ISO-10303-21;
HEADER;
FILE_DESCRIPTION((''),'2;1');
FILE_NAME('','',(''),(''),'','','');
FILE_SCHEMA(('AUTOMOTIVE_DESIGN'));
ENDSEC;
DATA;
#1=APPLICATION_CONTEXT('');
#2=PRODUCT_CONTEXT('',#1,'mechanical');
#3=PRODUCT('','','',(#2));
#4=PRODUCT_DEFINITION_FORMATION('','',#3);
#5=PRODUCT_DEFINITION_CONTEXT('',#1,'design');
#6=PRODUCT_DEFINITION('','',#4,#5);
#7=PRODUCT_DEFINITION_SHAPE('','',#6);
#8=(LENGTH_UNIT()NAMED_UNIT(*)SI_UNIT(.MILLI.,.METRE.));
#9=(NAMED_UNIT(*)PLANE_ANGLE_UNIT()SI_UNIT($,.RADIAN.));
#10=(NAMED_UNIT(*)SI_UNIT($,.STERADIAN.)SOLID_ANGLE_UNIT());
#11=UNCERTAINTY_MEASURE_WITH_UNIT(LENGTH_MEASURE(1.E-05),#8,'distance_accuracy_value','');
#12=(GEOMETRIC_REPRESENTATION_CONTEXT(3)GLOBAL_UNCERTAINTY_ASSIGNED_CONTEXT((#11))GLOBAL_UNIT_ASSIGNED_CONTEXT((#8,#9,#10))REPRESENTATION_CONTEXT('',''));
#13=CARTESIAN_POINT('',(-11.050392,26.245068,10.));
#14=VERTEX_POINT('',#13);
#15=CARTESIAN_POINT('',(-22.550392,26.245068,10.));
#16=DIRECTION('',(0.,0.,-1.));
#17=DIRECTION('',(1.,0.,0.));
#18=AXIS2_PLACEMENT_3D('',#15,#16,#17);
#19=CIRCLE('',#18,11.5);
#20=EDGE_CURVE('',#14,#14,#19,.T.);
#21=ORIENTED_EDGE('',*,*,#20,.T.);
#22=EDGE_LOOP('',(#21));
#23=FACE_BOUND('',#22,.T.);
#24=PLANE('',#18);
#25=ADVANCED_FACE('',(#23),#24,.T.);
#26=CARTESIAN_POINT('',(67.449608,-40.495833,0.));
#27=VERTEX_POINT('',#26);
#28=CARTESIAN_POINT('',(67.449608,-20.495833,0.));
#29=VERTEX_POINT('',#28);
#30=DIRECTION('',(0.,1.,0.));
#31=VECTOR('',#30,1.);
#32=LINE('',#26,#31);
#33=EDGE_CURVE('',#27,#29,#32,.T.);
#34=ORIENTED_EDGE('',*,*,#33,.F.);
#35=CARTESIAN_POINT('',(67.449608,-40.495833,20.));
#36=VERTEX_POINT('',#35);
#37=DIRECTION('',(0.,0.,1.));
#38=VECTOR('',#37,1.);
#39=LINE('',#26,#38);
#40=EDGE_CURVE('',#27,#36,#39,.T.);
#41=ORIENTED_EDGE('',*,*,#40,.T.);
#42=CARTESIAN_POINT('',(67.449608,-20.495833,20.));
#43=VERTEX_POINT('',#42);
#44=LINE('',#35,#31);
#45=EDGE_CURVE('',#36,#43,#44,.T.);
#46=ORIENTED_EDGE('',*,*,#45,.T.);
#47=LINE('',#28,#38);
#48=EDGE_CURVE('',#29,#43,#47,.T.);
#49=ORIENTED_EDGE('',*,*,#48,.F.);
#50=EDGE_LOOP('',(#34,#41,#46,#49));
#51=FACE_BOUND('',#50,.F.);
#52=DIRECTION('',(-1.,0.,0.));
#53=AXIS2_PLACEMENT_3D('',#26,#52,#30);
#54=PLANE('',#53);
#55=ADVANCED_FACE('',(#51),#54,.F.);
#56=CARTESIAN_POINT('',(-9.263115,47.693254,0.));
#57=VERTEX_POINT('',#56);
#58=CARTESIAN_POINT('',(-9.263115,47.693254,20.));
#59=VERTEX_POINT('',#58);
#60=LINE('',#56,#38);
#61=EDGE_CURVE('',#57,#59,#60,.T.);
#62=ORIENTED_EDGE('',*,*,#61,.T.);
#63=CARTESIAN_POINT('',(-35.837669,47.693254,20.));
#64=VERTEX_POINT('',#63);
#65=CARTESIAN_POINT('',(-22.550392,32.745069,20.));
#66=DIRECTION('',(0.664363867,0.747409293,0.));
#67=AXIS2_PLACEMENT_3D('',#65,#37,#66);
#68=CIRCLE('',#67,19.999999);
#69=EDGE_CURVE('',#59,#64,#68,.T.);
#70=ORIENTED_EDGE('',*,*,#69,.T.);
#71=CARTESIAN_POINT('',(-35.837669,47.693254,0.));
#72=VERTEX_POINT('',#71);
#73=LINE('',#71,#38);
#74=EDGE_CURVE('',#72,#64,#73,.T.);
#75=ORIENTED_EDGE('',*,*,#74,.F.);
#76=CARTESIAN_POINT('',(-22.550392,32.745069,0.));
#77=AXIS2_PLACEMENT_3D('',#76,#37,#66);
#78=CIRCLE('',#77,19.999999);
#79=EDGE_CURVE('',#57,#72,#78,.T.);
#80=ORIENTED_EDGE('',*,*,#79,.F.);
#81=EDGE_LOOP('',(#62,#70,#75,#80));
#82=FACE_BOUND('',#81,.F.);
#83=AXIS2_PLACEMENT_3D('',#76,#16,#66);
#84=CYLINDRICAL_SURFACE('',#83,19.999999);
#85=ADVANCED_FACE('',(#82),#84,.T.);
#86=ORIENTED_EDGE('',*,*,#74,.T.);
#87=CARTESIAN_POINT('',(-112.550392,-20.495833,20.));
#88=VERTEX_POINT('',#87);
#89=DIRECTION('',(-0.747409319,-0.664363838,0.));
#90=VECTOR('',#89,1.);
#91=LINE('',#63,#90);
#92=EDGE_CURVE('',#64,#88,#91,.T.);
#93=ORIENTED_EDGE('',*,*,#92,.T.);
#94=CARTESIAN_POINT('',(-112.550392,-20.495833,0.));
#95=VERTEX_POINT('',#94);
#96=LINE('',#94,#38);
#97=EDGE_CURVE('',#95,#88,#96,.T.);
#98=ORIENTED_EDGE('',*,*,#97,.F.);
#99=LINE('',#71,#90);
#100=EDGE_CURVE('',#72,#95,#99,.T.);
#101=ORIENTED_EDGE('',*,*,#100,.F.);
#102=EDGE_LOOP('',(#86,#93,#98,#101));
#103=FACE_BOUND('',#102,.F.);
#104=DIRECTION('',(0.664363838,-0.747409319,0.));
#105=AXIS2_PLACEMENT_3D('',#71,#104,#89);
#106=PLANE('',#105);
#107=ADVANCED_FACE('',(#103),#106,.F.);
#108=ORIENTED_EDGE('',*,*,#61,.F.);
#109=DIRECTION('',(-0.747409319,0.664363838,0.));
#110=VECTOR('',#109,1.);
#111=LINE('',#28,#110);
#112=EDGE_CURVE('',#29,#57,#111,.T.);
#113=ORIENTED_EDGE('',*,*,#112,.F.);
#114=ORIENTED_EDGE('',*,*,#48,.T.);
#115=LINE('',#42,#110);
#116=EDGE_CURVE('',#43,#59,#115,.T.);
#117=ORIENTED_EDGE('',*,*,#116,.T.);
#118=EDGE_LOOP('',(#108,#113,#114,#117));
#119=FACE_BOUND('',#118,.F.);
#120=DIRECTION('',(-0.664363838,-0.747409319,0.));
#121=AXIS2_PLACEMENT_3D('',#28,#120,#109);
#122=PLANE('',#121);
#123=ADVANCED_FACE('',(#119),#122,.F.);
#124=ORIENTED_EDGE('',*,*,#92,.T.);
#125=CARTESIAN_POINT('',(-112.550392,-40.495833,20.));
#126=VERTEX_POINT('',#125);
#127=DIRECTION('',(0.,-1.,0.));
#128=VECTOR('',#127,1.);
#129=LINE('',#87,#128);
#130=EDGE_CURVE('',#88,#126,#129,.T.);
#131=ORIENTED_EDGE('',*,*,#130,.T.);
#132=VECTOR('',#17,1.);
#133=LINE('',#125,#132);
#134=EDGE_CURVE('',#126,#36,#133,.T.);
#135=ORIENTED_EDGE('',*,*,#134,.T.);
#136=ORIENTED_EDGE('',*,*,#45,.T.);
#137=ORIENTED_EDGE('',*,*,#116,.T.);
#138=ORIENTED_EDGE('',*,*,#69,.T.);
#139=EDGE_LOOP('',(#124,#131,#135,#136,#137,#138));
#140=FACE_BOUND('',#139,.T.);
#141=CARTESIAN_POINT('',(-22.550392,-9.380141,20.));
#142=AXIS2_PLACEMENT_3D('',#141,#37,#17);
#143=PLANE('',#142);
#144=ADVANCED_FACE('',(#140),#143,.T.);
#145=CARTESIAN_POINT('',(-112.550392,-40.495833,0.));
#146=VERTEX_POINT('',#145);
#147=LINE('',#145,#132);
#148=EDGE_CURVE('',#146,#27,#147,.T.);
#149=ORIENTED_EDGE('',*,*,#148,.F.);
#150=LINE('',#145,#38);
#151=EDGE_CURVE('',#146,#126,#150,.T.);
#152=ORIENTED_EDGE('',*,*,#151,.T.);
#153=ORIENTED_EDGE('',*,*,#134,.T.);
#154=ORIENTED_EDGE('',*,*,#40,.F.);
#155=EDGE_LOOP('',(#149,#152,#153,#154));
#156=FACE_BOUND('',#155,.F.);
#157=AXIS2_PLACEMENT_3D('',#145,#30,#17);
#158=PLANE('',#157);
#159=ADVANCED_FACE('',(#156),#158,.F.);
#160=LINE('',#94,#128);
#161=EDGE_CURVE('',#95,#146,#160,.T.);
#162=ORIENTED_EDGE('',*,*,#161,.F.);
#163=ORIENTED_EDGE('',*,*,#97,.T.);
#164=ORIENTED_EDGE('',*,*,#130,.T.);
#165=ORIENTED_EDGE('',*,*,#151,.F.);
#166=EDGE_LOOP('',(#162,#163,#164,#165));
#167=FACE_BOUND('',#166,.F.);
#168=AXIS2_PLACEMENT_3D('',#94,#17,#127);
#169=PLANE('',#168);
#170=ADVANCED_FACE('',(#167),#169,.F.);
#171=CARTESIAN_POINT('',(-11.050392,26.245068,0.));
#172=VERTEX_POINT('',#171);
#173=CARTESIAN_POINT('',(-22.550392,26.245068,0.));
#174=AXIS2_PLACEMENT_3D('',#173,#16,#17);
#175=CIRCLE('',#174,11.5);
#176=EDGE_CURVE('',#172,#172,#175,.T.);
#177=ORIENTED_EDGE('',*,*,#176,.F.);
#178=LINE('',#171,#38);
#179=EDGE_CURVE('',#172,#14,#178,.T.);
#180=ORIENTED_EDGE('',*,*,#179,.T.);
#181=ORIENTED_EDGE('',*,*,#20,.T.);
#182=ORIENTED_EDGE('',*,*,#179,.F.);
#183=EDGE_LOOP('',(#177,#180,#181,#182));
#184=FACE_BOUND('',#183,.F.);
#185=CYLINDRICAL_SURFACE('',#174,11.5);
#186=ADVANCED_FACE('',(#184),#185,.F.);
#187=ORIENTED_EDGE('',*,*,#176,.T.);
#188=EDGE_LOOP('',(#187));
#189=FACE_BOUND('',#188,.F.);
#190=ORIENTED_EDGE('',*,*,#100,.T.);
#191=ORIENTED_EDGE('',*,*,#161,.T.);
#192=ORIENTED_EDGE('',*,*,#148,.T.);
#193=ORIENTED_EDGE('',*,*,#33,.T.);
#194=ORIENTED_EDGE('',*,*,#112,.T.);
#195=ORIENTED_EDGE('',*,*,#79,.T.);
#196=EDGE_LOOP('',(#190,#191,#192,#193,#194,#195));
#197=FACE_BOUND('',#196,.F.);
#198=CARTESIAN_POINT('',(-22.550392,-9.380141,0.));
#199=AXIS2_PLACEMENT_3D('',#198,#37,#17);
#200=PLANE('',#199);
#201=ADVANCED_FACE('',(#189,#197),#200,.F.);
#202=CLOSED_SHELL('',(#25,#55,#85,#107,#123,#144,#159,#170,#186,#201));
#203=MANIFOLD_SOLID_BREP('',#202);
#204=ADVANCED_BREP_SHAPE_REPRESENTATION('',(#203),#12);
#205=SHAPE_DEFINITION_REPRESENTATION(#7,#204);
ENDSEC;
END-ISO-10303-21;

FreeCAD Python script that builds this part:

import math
import FreeCAD as App
import Part
import Sketcher

V = App.Vector
Q = App.Units.Quantity

doc = App.newDocument("Part")
body = doc.addObject("PartDesign::Body", "Body")

sketch1 = doc.addObject("Sketcher::SketchObject", "Sketch")
body.addObject(sketch1)
sketch1.AttachmentSupport = (doc.XY_Plane, [""])
sketch1.MapMode = "FlatFace"
sketch1.addGeometry([
    Part.LineSegment(V(-36, 48, 0), V(-113, -20, 0)),
    Part.LineSegment(V(-113, -20, 0), V(-113, -40, 0)),
    Part.LineSegment(V(-113, -40, 0), V(67, -40, 0)),
    Part.LineSegment(V(67, -40, 0), V(67, -20, 0)),
    Part.LineSegment(V(67, -20, 0), V(-9, 48, 0)),
    Part.ArcOfCircle(Part.Circle(V(-23, 33, 0), V(0, 0, 1), 20), math.radians(48), math.radians(132)),
], False)
sketch1.addConstraint([
    Sketcher.Constraint("Coincident", 0, 2, 1, 1),
    Sketcher.Constraint("Coincident", 1, 2, 2, 1),
    Sketcher.Constraint("Coincident", 2, 2, 3, 1),
    Sketcher.Constraint("Coincident", 3, 2, 4, 1),
    Sketcher.Constraint("Tangent", 4, 2, 5, 1),
    Sketcher.Constraint("Tangent", 5, 2, 0, 1),
    Sketcher.Constraint("Vertical", 1),
    Sketcher.Constraint("Horizontal", 2),
    Sketcher.Constraint("Vertical", 3),
    Sketcher.Constraint("Horizontal", 0, 2, 3, 2),
    Sketcher.Constraint("Horizontal", 4, 2, 5, 2),
    Sketcher.Constraint("Radius", 5, Q("19.999999 mm")),
    Sketcher.Constraint("DistanceX", 2, 1, 2, 2, Q("180 mm")),
    Sketcher.Constraint("DistanceY", 1, 2, 1, 1, Q("20 mm")),
    Sketcher.Constraint("DistanceY", 0, 2, 5, 3, Q("53.240902 mm")),
    Sketcher.Constraint("DistanceX", 5, 3, -1, 1, Q("22.550392 mm")),
    Sketcher.Constraint("DistanceY", -1, 1, 5, 3, Q("32.745069 mm")),
])
pad1 = doc.addObject("PartDesign::Pad", "Pad")
body.addObject(pad1)
pad1.Profile = sketch1
pad1.Length = 20

sketch2 = doc.addObject("Sketcher::SketchObject", "Sketch001")
body.addObject(sketch2)
sketch2.AttachmentSupport = (doc.XY_Plane, [""])
sketch2.MapMode = "FlatFace"
sketch2.addGeometry(Part.Circle(V(-23, 26, 0), V(0, 0, 1), 12), False)
sketch2.addConstraint([
    Sketcher.Constraint("Diameter", 0, Q("23 mm")),
    Sketcher.Constraint("DistanceX", 0, 3, -1, 1, Q("22.550392 mm")),
    Sketcher.Constraint("DistanceY", -1, 1, 0, 3, Q("26.245068 mm")),
])
pocket1 = doc.addObject("PartDesign::Pocket", "Pocket")
body.addObject(pocket1)
pocket1.Profile = sketch2
pocket1.Length = 10
pocket1.Reversed = True

doc.recompute()
